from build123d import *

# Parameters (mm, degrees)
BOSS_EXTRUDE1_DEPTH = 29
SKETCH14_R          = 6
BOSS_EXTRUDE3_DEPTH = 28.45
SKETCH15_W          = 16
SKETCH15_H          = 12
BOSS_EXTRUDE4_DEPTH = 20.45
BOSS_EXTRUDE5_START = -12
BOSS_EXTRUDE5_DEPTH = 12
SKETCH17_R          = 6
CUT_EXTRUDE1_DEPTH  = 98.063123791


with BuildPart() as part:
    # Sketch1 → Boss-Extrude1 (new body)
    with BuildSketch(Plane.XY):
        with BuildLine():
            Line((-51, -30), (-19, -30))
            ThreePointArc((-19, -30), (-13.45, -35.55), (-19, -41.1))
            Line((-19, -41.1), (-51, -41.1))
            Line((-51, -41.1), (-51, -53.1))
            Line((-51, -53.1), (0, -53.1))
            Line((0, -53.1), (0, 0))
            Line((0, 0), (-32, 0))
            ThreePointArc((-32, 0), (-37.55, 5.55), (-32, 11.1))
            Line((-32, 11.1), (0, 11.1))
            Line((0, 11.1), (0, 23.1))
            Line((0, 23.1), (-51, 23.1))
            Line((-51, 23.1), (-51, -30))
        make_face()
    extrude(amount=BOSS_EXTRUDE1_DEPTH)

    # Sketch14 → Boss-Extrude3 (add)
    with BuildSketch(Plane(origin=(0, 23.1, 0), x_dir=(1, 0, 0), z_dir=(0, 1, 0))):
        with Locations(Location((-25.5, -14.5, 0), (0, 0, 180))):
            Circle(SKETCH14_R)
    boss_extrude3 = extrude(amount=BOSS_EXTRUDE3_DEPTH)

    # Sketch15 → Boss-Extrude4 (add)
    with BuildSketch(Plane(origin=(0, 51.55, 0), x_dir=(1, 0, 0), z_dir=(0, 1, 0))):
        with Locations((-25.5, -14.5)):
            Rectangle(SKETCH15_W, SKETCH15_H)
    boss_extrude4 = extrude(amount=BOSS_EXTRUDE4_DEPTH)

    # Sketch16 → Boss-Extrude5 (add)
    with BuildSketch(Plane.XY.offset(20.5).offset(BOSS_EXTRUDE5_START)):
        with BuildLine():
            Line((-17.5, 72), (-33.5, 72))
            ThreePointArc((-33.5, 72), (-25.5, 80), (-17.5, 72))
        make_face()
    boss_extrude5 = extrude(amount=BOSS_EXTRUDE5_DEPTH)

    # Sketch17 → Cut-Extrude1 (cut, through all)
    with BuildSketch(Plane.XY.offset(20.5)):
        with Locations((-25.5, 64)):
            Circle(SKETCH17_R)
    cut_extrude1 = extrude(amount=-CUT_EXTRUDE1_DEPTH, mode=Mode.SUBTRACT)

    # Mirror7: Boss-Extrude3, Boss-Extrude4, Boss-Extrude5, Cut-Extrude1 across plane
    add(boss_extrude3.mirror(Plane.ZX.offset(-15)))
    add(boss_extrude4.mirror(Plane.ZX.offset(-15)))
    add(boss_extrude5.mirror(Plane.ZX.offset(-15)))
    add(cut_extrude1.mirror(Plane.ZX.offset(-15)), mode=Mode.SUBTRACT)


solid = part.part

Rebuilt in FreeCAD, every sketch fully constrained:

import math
import FreeCAD as App
import Part
import Sketcher
from FreeCAD import Vector
Q = App.Units.Quantity


def add_polygon(sketch, points):
    """Adds a closed chain of lines whose ends are joined by coincident constraints."""
    first, n = sketch.GeometryCount, len(points)
    for a, b in zip(points, points[1:] + points[:1]):
        sketch.addGeometry(Part.LineSegment(App.Vector(*a, 0), App.Vector(*b, 0)), False)
    for i in range(n):
        sketch.addConstraint(Sketcher.Constraint("Coincident", first + i, 2, first + (i + 1) % n, 1))

doc = App.newDocument("Part")
body = doc.addObject("PartDesign::Body", "Body")

# Sketch on XY plane
sketch1 = body.newObject("Sketcher::SketchObject", "Sketch")
sketch1.AttachmentSupport = (doc.getObject("XY_Plane"), [""])
sketch1.MapMode = "FlatFace"
sketch1.addGeometry([
    Part.LineSegment(Vector(-51, -30, 0), Vector(-19, -30, 0)),  # 0
    Part.ArcOfCircle(Part.Circle(Vector(-19, -36, 0), Vector(0, 0, 1), 6), math.radians(-90), math.radians(90)),  # 1
    Part.LineSegment(Vector(-19, -41, 0), Vector(-51, -41, 0)),  # 2
    Part.LineSegment(Vector(-51, -41, 0), Vector(-51, -53, 0)),  # 3
    Part.LineSegment(Vector(-51, -53, 0), Vector(0, -53, 0)),  # 4
    Part.LineSegment(Vector(0, -53, 0), Vector(0, 0, 0)),  # 5
    Part.LineSegment(Vector(0, 0, 0), Vector(-32, 0, 0)),  # 6
    Part.ArcOfCircle(Part.Circle(Vector(-32, 6, 0), Vector(0, 0, 1), 6), math.radians(90), math.radians(270)),  # 7
    Part.LineSegment(Vector(-32, 11, 0), Vector(0, 11, 0)),  # 8
    Part.LineSegment(Vector(0, 11, 0), Vector(0, 23, 0)),  # 9
    Part.LineSegment(Vector(0, 23, 0), Vector(-51, 23, 0)),  # 10
    Part.LineSegment(Vector(-51, 23, 0), Vector(-51, -30, 0)),  # 11
], False)
sketch1.addConstraint([
    Sketcher.Constraint("Tangent", 0, 2, 1, 2),
    Sketcher.Constraint("Tangent", 1, 1, 2, 1),
    Sketcher.Constraint("Coincident", 2, 2, 3, 1),
    Sketcher.Constraint("Coincident", 3, 2, 4, 1),
    Sketcher.Constraint("Coincident", 4, 2, 5, 1),
    Sketcher.Constraint("Coincident", 5, 2, 6, 1),
    Sketcher.Constraint("Tangent", 6, 2, 7, 2),
    Sketcher.Constraint("Tangent", 7, 1, 8, 1),
    Sketcher.Constraint("Coincident", 8, 2, 9, 1),
    Sketcher.Constraint("Coincident", 9, 2, 10, 1),
    Sketcher.Constraint("Coincident", 10, 2, 11, 1),
    Sketcher.Constraint("Coincident", 11, 2, 0, 1),
    Sketcher.Constraint("Horizontal", 0),
    Sketcher.Constraint("Horizontal", 2),
    Sketcher.Constraint("Vertical", 3),
    Sketcher.Constraint("Horizontal", 4),
    Sketcher.Constraint("Vertical", 5),
    Sketcher.Constraint("Horizontal", 6),
    Sketcher.Constraint("Horizontal", 8),
    Sketcher.Constraint("Vertical", 9),
    Sketcher.Constraint("Horizontal", 10),
    Sketcher.Constraint("Vertical", 11),
    Sketcher.Constraint("Coincident", 5, 2, -1, 1),
    Sketcher.Constraint("Equal", 1, 7),
    Sketcher.Constraint("PointOnObject", 8, 2, -2),
    Sketcher.Constraint("Vertical", 3, 2, 10, 2),
    Sketcher.Constraint("Equal", 2, 6),
    Sketcher.Constraint("Equal", 3, 9),
    Sketcher.Constraint("DistanceX", 0, 1, 0, 2, Q("32 mm")),
    Sketcher.Constraint("DistanceX", 4, 1, 4, 2, Q("51 mm")),
    Sketcher.Constraint("DistanceY", 3, 2, 3, 1, Q("12 mm")),
    Sketcher.Constraint("Radius", 1, Q("5.55 mm")),
    Sketcher.Constraint("DistanceY", 5, 1, 5, 2, Q("53.1 mm")),
])
pad1 = body.newObject("PartDesign::Pad", "Pad")
pad1.Profile = sketch1
pad1.Length = 29

# Sketch on XZ plane
sketch2 = body.newObject("Sketcher::SketchObject", "Sketch001")
sketch2.AttachmentSupport = (doc.getObject("XZ_Plane"), [""])
sketch2.MapMode = "FlatFace"
sketch2.AttachmentOffset = App.Placement(Vector(0, 0, -23.1), App.Rotation())
sketch2.addGeometry(Part.Circle(Vector(-26, 14, 0), Vector(0, 0, 1), 6), False)
sketch2.addConstraint([
    Sketcher.Constraint("Diameter", 0, Q("12 mm")),
    Sketcher.Constraint("DistanceX", 0, 3, -1, 1, Q("25.5 mm")),
    Sketcher.Constraint("DistanceY", -1, 1, 0, 3, Q("14.5 mm")),
])
pad2 = body.newObject("PartDesign::Pad", "Pad001")
pad2.Profile = sketch2
pad2.Length = 28.45
pad2.Reversed = True

# Sketch on XZ plane
sketch3 = body.newObject("Sketcher::SketchObject", "Sketch002")
sketch3.AttachmentSupport = (doc.getObject("XZ_Plane"), [""])
sketch3.MapMode = "FlatFace"
sketch3.AttachmentOffset = App.Placement(Vector(0, 0, -51.55), App.Rotation())
add_polygon(sketch3, [(-34, 8), (-34, 20), (-18, 20), (-18, 8)])  # lines 0-3
sketch3.addConstraint([
    Sketcher.Constraint("Vertical", 0),
    Sketcher.Constraint("Horizontal", 1),
    Sketcher.Constraint("Vertical", 2),
    Sketcher.Constraint("Horizontal", 3),
    Sketcher.Constraint("DistanceX", 1, 1, 1, 2, Q("16 mm")),
    Sketcher.Constraint("DistanceY", 0, 1, 0, 2, Q("12 mm")),
    Sketcher.Constraint("DistanceX", 0, 2, -1, 1, Q("33.5 mm")),
    Sketcher.Constraint("DistanceY", -1, 1, 0, 2, Q("20.5 mm")),
])
pad3 = body.newObject("PartDesign::Pad", "Pad002")
pad3.Profile = sketch3
pad3.Length = 20.45
pad3.Reversed = True

# Sketch on XY plane
sketch4 = body.newObject("Sketcher::SketchObject", "Sketch003")
sketch4.AttachmentSupport = (doc.getObject("XY_Plane"), [""])
sketch4.MapMode = "FlatFace"
sketch4.AttachmentOffset = App.Placement(Vector(0, 0, 8.5), App.Rotation())
sketch4.addGeometry([
    Part.LineSegment(Vector(-34, 72, 0), Vector(-18, 72, 0)),
    Part.ArcOfCircle(Part.Circle(Vector(-26, 72, 0), Vector(0, 0, 1), 8), math.radians(0), math.radians(180)),
], False)
sketch4.addConstraint([
    Sketcher.Constraint("Coincident", 0, 1, 1, 2),
    Sketcher.Constraint("Coincident", 1, 1, 0, 2),
    Sketcher.Constraint("Horizontal", 0),
    Sketcher.Constraint("Horizontal", 1, 3, 0, 1),
    Sketcher.Constraint("Radius", 1, Q("8 mm")),
    Sketcher.Constraint("DistanceY", -1, 1, 1, 3, Q("72 mm")),
    Sketcher.Constraint("DistanceX", 1, 3, -1, 1, Q("25.5 mm")),
])
pad4 = body.newObject("PartDesign::Pad", "Pad003")
pad4.Profile = sketch4
pad4.Length = 12

# Sketch on XY plane
sketch5 = body.newObject("Sketcher::SketchObject", "Sketch004")
sketch5.AttachmentSupport = (doc.getObject("XY_Plane"), [""])
sketch5.MapMode = "FlatFace"
sketch5.AttachmentOffset = App.Placement(Vector(0, 0, 20.5), App.Rotation())
sketch5.addGeometry(Part.Circle(Vector(-26, 64, 0), Vector(0, 0, 1), 6), False)
sketch5.addConstraint([
    Sketcher.Constraint("Diameter", 0, Q("12 mm")),
    Sketcher.Constraint("DistanceY", -1, 1, 0, 3, Q("64 mm")),
    Sketcher.Constraint("DistanceX", 0, 3, -1, 1, Q("25.5 mm")),
])
pocket1 = body.newObject("PartDesign::Pocket", "Pocket")
pocket1.Profile = sketch5
pocket1.Type = "ThroughAll"
doc.recompute()

datumplane = body.newObject("PartDesign::Plane", "DatumPlane")
datumplane.AttachmentSupport = (doc.getObject("XZ_Plane"), [""])
datumplane.MapMode = "FlatFace"
datumplane.AttachmentOffset = App.Placement(Vector(0, 0, 15), App.Rotation())
mirrored = body.newObject("PartDesign::Mirrored", "Mirrored")
mirrored.Originals = [pad2, pad3, pad4, pocket1]
mirrored.MirrorPlane = (datumplane, [""])
body.Tip = mirrored

doc.recompute()
